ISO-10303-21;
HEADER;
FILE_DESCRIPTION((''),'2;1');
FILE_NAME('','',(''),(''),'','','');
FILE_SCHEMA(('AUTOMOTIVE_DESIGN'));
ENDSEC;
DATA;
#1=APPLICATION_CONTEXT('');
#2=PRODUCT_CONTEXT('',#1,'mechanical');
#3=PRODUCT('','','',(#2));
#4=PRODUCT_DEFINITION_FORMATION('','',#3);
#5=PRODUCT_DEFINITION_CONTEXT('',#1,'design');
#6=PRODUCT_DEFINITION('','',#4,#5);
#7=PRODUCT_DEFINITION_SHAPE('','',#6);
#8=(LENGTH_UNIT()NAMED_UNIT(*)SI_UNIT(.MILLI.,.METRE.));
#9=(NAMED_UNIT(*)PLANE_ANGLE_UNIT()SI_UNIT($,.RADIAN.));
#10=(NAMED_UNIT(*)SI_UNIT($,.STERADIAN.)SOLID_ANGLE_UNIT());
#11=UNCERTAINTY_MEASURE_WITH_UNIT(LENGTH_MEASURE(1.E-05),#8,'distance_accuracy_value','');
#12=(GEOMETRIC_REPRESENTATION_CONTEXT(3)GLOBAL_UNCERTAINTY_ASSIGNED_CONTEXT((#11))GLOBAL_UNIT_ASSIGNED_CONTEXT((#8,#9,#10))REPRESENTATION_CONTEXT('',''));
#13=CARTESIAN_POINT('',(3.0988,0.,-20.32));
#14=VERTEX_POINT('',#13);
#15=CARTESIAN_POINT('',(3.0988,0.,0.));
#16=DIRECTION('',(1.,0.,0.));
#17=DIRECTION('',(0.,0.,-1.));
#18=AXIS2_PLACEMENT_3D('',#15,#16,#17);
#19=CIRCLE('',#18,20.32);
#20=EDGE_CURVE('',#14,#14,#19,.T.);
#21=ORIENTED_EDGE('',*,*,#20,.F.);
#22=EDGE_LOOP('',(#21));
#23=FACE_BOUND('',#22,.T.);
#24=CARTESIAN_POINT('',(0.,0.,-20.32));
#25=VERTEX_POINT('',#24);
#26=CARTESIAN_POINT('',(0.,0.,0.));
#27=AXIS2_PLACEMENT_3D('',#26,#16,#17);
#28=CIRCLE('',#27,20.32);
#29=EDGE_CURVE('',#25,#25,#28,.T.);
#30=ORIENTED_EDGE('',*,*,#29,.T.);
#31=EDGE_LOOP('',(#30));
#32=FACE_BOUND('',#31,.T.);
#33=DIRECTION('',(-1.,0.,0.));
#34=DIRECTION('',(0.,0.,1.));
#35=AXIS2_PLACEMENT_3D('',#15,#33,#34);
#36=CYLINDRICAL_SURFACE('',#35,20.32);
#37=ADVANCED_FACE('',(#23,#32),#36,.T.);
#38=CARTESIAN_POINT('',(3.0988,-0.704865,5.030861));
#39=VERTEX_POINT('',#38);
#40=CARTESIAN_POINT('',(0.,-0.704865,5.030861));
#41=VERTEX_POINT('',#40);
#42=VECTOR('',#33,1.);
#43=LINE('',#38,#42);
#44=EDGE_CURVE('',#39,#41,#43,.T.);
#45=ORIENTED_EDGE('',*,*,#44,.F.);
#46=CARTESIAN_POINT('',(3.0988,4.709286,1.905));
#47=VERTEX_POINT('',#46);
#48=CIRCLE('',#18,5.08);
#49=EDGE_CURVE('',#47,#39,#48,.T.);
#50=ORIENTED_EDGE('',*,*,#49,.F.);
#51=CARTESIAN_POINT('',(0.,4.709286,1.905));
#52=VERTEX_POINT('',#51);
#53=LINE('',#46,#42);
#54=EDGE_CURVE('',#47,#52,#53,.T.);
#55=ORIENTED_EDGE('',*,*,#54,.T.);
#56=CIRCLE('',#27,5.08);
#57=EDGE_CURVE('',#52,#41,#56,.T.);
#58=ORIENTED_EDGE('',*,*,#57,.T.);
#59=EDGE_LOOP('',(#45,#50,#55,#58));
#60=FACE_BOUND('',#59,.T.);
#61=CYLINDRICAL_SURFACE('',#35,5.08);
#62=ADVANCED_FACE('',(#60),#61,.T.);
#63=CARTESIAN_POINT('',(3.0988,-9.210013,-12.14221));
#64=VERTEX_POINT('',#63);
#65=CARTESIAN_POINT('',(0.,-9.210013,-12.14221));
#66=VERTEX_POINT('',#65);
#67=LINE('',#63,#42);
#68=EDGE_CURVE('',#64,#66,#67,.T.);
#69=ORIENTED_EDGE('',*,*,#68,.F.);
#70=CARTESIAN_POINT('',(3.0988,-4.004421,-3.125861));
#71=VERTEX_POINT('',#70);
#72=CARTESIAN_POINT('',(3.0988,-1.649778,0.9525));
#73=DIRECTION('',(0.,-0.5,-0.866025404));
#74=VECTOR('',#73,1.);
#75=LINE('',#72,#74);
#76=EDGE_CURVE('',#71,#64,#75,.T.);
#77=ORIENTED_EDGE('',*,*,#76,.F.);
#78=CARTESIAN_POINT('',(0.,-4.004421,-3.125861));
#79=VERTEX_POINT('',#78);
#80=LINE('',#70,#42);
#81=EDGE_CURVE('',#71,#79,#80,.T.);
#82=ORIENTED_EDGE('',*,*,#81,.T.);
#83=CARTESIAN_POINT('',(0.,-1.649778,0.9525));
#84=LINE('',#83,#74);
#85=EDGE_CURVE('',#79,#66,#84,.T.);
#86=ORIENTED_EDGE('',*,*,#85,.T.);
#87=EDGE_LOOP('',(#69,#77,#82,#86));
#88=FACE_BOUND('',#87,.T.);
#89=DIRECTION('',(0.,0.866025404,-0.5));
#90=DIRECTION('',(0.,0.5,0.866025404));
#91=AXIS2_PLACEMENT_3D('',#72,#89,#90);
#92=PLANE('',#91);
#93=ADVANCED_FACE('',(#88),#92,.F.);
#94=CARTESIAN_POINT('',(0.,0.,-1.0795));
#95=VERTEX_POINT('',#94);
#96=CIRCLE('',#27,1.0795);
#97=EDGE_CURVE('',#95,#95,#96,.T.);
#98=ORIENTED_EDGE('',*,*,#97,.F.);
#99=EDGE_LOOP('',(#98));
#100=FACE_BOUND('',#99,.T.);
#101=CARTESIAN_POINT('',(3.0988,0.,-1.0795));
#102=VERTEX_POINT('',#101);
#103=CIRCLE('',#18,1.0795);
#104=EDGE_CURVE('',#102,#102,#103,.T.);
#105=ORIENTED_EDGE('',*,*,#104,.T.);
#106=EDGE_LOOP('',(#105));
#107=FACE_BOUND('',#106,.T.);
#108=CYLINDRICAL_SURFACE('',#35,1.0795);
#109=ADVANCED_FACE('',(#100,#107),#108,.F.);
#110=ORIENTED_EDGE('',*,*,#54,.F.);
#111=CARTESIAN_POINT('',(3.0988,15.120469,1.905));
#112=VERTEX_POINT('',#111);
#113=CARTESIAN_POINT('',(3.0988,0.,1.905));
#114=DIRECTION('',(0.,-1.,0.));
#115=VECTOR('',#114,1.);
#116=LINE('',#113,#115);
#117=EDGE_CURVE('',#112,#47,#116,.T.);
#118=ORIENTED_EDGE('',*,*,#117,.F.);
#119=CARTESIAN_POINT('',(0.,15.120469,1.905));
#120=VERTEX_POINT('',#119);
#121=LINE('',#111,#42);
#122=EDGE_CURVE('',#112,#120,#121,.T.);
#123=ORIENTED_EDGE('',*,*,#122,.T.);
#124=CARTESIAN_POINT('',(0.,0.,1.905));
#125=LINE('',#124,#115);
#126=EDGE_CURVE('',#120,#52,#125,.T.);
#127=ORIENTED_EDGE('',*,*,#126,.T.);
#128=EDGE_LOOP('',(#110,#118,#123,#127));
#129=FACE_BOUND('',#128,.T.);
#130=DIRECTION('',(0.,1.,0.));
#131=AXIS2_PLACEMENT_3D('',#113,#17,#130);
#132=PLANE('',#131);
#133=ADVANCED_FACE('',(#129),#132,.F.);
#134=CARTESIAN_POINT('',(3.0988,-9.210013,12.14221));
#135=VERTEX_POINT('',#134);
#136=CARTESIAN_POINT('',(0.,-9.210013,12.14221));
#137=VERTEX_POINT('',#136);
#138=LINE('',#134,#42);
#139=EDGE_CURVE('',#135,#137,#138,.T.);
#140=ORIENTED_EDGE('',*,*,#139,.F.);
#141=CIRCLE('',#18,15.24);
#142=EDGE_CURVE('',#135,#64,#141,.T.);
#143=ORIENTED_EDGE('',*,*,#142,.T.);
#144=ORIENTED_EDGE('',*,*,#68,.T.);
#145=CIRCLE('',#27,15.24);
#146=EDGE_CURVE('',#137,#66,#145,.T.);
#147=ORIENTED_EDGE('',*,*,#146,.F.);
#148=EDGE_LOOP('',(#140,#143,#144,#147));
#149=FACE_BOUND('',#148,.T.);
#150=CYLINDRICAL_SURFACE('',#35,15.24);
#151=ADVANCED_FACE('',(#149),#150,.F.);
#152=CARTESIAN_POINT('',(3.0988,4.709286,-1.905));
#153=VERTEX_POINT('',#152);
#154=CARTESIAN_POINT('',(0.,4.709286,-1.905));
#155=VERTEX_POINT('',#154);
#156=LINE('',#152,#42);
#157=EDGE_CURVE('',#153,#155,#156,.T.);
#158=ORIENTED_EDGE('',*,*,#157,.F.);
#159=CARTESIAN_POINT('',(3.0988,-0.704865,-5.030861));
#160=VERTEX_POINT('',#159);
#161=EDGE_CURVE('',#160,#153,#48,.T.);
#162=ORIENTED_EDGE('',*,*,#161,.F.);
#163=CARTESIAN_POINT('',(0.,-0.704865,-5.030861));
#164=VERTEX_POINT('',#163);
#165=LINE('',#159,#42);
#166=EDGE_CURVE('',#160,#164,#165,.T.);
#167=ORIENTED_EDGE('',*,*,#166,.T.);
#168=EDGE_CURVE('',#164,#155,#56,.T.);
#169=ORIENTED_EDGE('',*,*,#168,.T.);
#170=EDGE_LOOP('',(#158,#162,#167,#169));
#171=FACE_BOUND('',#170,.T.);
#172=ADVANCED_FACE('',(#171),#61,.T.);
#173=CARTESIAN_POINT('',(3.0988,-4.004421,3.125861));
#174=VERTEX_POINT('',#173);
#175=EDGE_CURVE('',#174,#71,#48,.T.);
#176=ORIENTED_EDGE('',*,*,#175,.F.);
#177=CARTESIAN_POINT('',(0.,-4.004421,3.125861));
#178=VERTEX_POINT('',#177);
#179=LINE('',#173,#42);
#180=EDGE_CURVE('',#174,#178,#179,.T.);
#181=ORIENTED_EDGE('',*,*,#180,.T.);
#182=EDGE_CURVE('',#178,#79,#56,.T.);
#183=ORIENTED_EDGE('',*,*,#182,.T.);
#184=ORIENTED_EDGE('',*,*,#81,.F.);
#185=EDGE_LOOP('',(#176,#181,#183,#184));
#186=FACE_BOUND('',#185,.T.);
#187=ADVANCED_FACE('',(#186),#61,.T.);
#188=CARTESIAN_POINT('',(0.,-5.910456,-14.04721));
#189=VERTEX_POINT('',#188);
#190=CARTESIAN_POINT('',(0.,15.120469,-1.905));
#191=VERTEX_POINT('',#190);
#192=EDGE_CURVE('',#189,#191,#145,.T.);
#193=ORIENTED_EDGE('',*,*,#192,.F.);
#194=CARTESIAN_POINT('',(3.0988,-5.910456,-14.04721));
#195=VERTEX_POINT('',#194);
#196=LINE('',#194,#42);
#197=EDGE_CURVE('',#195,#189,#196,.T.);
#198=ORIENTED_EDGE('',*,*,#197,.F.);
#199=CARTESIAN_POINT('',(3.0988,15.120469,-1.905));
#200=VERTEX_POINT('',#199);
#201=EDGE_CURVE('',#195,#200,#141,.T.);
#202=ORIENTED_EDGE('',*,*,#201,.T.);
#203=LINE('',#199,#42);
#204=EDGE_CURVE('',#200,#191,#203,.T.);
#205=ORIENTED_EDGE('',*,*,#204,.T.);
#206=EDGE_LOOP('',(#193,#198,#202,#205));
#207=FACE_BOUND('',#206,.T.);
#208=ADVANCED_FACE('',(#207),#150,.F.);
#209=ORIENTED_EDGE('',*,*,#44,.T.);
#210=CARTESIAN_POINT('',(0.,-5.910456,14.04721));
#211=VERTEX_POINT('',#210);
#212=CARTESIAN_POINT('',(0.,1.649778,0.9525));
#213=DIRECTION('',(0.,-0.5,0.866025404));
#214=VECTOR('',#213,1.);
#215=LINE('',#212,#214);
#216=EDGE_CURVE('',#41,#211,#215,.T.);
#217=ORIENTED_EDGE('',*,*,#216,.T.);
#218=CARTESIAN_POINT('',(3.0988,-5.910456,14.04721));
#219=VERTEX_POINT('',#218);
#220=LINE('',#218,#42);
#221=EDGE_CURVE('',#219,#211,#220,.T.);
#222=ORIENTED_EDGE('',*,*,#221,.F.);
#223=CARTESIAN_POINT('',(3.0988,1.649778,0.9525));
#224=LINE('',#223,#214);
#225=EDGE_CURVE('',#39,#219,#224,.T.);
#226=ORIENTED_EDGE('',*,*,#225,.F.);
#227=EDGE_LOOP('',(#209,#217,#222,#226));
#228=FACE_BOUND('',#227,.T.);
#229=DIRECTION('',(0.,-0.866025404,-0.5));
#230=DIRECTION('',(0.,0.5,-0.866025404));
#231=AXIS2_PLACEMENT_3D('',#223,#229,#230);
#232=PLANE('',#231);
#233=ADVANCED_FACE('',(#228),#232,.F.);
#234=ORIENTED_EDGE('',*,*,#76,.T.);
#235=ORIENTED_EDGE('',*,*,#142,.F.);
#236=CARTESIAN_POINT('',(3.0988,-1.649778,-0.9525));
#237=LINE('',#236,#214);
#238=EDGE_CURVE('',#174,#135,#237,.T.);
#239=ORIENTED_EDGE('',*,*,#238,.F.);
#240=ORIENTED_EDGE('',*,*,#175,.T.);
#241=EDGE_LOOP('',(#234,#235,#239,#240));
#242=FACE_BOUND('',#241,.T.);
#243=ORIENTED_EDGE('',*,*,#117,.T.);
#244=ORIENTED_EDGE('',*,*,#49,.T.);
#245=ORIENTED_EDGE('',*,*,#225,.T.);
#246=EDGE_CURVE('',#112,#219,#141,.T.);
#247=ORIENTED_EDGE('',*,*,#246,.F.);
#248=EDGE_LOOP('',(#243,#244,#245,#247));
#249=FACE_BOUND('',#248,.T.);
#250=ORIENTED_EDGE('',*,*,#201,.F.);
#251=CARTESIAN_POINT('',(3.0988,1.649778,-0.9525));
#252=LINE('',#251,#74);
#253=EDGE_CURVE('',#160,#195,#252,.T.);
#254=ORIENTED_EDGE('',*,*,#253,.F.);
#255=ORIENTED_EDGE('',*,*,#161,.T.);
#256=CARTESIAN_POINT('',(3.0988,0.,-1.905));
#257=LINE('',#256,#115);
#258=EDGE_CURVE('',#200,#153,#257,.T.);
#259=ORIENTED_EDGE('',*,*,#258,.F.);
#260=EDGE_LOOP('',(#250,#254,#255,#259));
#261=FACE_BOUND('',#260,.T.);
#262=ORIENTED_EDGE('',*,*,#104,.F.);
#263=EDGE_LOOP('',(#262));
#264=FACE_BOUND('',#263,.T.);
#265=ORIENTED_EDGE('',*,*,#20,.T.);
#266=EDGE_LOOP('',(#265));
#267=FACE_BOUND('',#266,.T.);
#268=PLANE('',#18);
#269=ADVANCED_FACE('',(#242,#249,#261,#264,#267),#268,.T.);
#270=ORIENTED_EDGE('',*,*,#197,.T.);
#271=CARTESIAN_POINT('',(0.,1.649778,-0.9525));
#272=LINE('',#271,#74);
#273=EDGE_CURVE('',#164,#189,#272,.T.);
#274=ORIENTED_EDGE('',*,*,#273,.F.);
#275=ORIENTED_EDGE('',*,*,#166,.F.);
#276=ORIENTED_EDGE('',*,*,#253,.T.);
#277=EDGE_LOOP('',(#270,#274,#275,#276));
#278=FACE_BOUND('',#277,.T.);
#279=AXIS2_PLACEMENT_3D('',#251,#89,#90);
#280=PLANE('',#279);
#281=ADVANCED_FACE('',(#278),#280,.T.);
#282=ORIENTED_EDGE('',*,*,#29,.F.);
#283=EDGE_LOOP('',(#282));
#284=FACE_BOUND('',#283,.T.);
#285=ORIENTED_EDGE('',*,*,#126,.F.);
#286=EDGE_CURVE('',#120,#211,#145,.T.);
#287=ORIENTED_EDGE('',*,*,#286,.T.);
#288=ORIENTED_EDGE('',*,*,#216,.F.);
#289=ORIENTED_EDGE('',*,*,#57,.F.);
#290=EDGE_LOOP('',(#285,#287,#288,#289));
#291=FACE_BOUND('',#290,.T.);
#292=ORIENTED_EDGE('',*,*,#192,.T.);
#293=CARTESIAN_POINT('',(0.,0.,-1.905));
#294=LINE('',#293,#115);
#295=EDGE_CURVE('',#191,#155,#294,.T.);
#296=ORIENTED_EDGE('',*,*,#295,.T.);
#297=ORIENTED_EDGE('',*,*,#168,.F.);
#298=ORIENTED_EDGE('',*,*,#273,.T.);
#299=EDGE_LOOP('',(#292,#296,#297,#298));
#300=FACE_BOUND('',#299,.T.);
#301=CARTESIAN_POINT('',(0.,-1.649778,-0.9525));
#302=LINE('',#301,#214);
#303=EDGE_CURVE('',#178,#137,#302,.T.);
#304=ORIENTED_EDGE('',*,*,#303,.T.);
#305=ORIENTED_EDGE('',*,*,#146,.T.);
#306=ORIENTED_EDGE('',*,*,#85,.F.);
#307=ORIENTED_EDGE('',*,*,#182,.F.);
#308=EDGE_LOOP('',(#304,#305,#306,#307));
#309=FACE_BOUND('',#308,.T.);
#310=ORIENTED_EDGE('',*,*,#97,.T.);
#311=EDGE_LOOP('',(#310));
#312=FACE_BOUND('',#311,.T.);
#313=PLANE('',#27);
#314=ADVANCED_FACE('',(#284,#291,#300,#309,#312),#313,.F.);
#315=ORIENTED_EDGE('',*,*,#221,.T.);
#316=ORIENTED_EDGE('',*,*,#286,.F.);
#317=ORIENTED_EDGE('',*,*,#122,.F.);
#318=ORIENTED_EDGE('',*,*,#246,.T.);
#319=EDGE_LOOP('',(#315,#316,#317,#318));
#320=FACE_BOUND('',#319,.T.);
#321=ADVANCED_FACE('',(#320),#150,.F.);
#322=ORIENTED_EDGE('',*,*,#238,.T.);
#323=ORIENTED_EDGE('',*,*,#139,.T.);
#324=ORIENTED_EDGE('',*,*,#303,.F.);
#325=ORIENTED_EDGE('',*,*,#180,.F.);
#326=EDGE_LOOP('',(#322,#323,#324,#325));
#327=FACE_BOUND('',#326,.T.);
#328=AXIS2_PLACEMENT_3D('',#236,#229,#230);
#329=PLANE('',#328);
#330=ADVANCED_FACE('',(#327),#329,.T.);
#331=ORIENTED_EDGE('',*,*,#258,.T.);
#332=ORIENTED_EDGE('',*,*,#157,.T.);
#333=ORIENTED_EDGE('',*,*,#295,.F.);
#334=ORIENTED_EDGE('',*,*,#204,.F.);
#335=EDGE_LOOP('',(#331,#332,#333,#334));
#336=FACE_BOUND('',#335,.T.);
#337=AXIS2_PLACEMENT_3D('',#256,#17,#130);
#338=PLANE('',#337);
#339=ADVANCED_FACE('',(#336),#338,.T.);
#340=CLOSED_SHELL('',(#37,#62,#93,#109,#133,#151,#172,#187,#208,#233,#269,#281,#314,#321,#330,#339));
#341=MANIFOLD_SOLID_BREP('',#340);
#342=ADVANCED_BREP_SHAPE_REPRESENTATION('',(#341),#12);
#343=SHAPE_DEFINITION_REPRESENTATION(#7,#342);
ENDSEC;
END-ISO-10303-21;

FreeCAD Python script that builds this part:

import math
import FreeCAD as App
import Part
import Sketcher
from FreeCAD import Vector
Q = App.Units.Quantity

doc = App.newDocument("Part")
body = doc.addObject("PartDesign::Body", "Body")

sketch1 = body.newObject("Sketcher::SketchObject", "Sketch")
sketch1.AttachmentSupport = (doc.getObject("YZ_Plane"), [""])
sketch1.MapMode = "FlatFace"
sketch1.addGeometry([
    Part.Circle(Vector(0, 0, 0), Vector(0, 0, 1), 20.3),
    Part.ArcOfCircle(Part.Circle(Vector(0, 0, 0), Vector(0, 0, 1), 15.2), math.radians(127), math.radians(233)),
    Part.LineSegment(Vector(-9.2, 12.1, 0), Vector(-4, 3.1, 0)),
    Part.ArcOfCircle(Part.Circle(Vector(0, 0, 0), Vector(0, 0, 1), 5.1), math.radians(142), math.radians(218)),
    Part.LineSegment(Vector(-4, -3.1, 0), Vector(-9.2, -12.1, 0)),
    Part.LineSegment(Vector(-0.7, 5, 0), Vector(-5.9, 14, 0)),
    Part.ArcOfCircle(Part.Circle(Vector(0, 0, 0), Vector(0, 0, 1), 15.2), math.radians(7), math.radians(113)),
    Part.LineSegment(Vector(15.1, 1.9, 0), Vector(4.7, 1.9, 0)),
    Part.ArcOfCircle(Part.Circle(Vector(0, 0, 0), Vector(0, 0, 1), 5.1), math.radians(22), math.radians(98)),
    Part.Circle(Vector(0, 0, 0), Vector(0, 0, 1), 1.1),
    Part.ArcOfCircle(Part.Circle(Vector(0, 0, 0), Vector(0, 0, 1), 5.1), math.radians(-98), math.radians(-22)),
    Part.LineSegment(Vector(4.7, -1.9, 0), Vector(15.1, -1.9, 0)),
    Part.ArcOfCircle(Part.Circle(Vector(0, 0, 0), Vector(0, 0, 1), 15.2), math.radians(-113), math.radians(-7)),
    Part.LineSegment(Vector(-5.9, -14, 0), Vector(-0.7, -5, 0)),
], False)
sketch1.addConstraint([
    Sketcher.Constraint("Coincident", 1, 1, 2, 1),
    Sketcher.Constraint("Coincident", 2, 2, 3, 1),
    Sketcher.Constraint("Coincident", 3, 2, 4, 1),
    Sketcher.Constraint("Coincident", 4, 2, 1, 2),
    Sketcher.Constraint("Coincident", 5, 2, 6, 2),
    Sketcher.Constraint("Coincident", 6, 1, 7, 1),
    Sketcher.Constraint("Coincident", 7, 2, 8, 1),
    Sketcher.Constraint("Coincident", 8, 2, 5, 1),
    Sketcher.Constraint("Coincident", 10, 2, 11, 1),
    Sketcher.Constraint("Coincident", 11, 2, 12, 2),
    Sketcher.Constraint("Coincident", 12, 1, 13, 1),
    Sketcher.Constraint("Coincident", 13, 2, 10, 1),
    Sketcher.Constraint("Horizontal", 7),
    Sketcher.Constraint("Horizontal", 11),
    Sketcher.Constraint("Coincident", 0, 3, -1, 1),
    Sketcher.Constraint("Coincident", 1, 3, -1, 1),
    Sketcher.Constraint("Coincident", 3, 3, -1, 1),
    Sketcher.Constraint("Coincident", 6, 3, -1, 1),
    Sketcher.Constraint("Coincident", 8, 3, -1, 1),
    Sketcher.Constraint("Coincident", 9, 3, -1, 1),
    Sketcher.Constraint("Coincident", 10, 3, -1, 1),
    Sketcher.Constraint("Coincident", 12, 3, -1, 1),
    Sketcher.Constraint("Equal", 1, 6),
    Sketcher.Constraint("Equal", 3, 8),
    Sketcher.Constraint("Equal", 8, 10),
    Sketcher.Constraint("Equal", 6, 12),
    Sketcher.Constraint("Parallel", 2, 5),
    Sketcher.Constraint("Parallel", 4, 13),
    Sketcher.Constraint("Vertical", 2, 2, 3, 2),
    Sketcher.Constraint("Vertical", 1, 1, 4, 2),
    Sketcher.Constraint("Vertical", 7, 2, 10, 2),
    Sketcher.Constraint("Vertical", 5, 2, 12, 1),
    Sketcher.Constraint("Equal", 4, 5),
    Sketcher.Constraint("Diameter", 0, Q("1.6 in")),
    Sketcher.Constraint("Radius", 1, Q("0.6 in")),
    Sketcher.Constraint("Radius", 3, Q("0.2 in")),
    Sketcher.Constraint("Diameter", 9, Q("0.085 in")),
    Sketcher.Constraint("Angle", 2, Q("-60 deg")),
    Sketcher.Constraint("DistanceY", 10, 2, 7, 2, Q("0.15 in")),
    Sketcher.Constraint("DistanceY", 1, 1, 5, 2, Q("0.075 in")),
])
pad1 = body.newObject("PartDesign::Pad", "Pad")
pad1.Profile = sketch1
pad1.Length = Q("0.122 in")

doc.recompute()
